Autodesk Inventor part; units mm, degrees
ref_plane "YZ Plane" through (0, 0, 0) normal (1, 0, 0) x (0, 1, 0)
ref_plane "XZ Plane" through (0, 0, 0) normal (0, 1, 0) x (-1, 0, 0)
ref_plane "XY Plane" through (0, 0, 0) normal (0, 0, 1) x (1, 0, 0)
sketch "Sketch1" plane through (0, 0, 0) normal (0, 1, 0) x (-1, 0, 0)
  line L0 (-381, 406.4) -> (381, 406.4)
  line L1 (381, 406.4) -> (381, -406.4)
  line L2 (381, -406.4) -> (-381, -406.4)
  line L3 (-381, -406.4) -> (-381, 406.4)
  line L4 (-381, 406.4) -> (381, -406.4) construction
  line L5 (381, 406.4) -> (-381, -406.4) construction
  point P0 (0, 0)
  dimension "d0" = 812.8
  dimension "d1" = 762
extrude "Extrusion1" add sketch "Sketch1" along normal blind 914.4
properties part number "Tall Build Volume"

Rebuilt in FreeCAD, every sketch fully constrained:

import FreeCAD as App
import Part
import Sketcher
from FreeCAD import Vector
Q = App.Units.Quantity


def add_polygon(sketch, points):
    """Adds a closed chain of lines whose ends are joined by coincident constraints."""
    first, n = sketch.GeometryCount, len(points)
    for a, b in zip(points, points[1:] + points[:1]):
        sketch.addGeometry(Part.LineSegment(App.Vector(*a, 0), App.Vector(*b, 0)), False)
    for i in range(n):
        sketch.addConstraint(Sketcher.Constraint("Coincident", first + i, 2, first + (i + 1) % n, 1))

doc = App.newDocument("Part")
body = doc.addObject("PartDesign::Body", "Body")

sketch1 = doc.addObject("Sketcher::SketchObject", "Sketch")
body.addObject(sketch1)
sketch1.AttachmentSupport = (doc.XZ_Plane, [""])
sketch1.MapMode = "FlatFace"
add_polygon(sketch1, [(-381, 406), (381, 406), (381, -406), (-381, -406)])
sketch1.addConstraint([
    Sketcher.Constraint("Horizontal", 0),
    Sketcher.Constraint("Vertical", 1),
    Sketcher.Constraint("Horizontal", 2),
    Sketcher.Constraint("Vertical", 3),
    Sketcher.Constraint("Symmetric", 0, 2, 2, 2, -1, 1),
    Sketcher.Constraint("DistanceX", 0, 1, 0, 2, Q("30 in")),
    Sketcher.Constraint("DistanceY", 1, 2, 1, 1, Q("32 in")),
])
pad1 = doc.addObject("PartDesign::Pad", "Pad")
body.addObject(pad1)
pad1.Profile = sketch1
pad1.Length = Q("36 in")
pad1.Reversed = True

doc.recompute()
